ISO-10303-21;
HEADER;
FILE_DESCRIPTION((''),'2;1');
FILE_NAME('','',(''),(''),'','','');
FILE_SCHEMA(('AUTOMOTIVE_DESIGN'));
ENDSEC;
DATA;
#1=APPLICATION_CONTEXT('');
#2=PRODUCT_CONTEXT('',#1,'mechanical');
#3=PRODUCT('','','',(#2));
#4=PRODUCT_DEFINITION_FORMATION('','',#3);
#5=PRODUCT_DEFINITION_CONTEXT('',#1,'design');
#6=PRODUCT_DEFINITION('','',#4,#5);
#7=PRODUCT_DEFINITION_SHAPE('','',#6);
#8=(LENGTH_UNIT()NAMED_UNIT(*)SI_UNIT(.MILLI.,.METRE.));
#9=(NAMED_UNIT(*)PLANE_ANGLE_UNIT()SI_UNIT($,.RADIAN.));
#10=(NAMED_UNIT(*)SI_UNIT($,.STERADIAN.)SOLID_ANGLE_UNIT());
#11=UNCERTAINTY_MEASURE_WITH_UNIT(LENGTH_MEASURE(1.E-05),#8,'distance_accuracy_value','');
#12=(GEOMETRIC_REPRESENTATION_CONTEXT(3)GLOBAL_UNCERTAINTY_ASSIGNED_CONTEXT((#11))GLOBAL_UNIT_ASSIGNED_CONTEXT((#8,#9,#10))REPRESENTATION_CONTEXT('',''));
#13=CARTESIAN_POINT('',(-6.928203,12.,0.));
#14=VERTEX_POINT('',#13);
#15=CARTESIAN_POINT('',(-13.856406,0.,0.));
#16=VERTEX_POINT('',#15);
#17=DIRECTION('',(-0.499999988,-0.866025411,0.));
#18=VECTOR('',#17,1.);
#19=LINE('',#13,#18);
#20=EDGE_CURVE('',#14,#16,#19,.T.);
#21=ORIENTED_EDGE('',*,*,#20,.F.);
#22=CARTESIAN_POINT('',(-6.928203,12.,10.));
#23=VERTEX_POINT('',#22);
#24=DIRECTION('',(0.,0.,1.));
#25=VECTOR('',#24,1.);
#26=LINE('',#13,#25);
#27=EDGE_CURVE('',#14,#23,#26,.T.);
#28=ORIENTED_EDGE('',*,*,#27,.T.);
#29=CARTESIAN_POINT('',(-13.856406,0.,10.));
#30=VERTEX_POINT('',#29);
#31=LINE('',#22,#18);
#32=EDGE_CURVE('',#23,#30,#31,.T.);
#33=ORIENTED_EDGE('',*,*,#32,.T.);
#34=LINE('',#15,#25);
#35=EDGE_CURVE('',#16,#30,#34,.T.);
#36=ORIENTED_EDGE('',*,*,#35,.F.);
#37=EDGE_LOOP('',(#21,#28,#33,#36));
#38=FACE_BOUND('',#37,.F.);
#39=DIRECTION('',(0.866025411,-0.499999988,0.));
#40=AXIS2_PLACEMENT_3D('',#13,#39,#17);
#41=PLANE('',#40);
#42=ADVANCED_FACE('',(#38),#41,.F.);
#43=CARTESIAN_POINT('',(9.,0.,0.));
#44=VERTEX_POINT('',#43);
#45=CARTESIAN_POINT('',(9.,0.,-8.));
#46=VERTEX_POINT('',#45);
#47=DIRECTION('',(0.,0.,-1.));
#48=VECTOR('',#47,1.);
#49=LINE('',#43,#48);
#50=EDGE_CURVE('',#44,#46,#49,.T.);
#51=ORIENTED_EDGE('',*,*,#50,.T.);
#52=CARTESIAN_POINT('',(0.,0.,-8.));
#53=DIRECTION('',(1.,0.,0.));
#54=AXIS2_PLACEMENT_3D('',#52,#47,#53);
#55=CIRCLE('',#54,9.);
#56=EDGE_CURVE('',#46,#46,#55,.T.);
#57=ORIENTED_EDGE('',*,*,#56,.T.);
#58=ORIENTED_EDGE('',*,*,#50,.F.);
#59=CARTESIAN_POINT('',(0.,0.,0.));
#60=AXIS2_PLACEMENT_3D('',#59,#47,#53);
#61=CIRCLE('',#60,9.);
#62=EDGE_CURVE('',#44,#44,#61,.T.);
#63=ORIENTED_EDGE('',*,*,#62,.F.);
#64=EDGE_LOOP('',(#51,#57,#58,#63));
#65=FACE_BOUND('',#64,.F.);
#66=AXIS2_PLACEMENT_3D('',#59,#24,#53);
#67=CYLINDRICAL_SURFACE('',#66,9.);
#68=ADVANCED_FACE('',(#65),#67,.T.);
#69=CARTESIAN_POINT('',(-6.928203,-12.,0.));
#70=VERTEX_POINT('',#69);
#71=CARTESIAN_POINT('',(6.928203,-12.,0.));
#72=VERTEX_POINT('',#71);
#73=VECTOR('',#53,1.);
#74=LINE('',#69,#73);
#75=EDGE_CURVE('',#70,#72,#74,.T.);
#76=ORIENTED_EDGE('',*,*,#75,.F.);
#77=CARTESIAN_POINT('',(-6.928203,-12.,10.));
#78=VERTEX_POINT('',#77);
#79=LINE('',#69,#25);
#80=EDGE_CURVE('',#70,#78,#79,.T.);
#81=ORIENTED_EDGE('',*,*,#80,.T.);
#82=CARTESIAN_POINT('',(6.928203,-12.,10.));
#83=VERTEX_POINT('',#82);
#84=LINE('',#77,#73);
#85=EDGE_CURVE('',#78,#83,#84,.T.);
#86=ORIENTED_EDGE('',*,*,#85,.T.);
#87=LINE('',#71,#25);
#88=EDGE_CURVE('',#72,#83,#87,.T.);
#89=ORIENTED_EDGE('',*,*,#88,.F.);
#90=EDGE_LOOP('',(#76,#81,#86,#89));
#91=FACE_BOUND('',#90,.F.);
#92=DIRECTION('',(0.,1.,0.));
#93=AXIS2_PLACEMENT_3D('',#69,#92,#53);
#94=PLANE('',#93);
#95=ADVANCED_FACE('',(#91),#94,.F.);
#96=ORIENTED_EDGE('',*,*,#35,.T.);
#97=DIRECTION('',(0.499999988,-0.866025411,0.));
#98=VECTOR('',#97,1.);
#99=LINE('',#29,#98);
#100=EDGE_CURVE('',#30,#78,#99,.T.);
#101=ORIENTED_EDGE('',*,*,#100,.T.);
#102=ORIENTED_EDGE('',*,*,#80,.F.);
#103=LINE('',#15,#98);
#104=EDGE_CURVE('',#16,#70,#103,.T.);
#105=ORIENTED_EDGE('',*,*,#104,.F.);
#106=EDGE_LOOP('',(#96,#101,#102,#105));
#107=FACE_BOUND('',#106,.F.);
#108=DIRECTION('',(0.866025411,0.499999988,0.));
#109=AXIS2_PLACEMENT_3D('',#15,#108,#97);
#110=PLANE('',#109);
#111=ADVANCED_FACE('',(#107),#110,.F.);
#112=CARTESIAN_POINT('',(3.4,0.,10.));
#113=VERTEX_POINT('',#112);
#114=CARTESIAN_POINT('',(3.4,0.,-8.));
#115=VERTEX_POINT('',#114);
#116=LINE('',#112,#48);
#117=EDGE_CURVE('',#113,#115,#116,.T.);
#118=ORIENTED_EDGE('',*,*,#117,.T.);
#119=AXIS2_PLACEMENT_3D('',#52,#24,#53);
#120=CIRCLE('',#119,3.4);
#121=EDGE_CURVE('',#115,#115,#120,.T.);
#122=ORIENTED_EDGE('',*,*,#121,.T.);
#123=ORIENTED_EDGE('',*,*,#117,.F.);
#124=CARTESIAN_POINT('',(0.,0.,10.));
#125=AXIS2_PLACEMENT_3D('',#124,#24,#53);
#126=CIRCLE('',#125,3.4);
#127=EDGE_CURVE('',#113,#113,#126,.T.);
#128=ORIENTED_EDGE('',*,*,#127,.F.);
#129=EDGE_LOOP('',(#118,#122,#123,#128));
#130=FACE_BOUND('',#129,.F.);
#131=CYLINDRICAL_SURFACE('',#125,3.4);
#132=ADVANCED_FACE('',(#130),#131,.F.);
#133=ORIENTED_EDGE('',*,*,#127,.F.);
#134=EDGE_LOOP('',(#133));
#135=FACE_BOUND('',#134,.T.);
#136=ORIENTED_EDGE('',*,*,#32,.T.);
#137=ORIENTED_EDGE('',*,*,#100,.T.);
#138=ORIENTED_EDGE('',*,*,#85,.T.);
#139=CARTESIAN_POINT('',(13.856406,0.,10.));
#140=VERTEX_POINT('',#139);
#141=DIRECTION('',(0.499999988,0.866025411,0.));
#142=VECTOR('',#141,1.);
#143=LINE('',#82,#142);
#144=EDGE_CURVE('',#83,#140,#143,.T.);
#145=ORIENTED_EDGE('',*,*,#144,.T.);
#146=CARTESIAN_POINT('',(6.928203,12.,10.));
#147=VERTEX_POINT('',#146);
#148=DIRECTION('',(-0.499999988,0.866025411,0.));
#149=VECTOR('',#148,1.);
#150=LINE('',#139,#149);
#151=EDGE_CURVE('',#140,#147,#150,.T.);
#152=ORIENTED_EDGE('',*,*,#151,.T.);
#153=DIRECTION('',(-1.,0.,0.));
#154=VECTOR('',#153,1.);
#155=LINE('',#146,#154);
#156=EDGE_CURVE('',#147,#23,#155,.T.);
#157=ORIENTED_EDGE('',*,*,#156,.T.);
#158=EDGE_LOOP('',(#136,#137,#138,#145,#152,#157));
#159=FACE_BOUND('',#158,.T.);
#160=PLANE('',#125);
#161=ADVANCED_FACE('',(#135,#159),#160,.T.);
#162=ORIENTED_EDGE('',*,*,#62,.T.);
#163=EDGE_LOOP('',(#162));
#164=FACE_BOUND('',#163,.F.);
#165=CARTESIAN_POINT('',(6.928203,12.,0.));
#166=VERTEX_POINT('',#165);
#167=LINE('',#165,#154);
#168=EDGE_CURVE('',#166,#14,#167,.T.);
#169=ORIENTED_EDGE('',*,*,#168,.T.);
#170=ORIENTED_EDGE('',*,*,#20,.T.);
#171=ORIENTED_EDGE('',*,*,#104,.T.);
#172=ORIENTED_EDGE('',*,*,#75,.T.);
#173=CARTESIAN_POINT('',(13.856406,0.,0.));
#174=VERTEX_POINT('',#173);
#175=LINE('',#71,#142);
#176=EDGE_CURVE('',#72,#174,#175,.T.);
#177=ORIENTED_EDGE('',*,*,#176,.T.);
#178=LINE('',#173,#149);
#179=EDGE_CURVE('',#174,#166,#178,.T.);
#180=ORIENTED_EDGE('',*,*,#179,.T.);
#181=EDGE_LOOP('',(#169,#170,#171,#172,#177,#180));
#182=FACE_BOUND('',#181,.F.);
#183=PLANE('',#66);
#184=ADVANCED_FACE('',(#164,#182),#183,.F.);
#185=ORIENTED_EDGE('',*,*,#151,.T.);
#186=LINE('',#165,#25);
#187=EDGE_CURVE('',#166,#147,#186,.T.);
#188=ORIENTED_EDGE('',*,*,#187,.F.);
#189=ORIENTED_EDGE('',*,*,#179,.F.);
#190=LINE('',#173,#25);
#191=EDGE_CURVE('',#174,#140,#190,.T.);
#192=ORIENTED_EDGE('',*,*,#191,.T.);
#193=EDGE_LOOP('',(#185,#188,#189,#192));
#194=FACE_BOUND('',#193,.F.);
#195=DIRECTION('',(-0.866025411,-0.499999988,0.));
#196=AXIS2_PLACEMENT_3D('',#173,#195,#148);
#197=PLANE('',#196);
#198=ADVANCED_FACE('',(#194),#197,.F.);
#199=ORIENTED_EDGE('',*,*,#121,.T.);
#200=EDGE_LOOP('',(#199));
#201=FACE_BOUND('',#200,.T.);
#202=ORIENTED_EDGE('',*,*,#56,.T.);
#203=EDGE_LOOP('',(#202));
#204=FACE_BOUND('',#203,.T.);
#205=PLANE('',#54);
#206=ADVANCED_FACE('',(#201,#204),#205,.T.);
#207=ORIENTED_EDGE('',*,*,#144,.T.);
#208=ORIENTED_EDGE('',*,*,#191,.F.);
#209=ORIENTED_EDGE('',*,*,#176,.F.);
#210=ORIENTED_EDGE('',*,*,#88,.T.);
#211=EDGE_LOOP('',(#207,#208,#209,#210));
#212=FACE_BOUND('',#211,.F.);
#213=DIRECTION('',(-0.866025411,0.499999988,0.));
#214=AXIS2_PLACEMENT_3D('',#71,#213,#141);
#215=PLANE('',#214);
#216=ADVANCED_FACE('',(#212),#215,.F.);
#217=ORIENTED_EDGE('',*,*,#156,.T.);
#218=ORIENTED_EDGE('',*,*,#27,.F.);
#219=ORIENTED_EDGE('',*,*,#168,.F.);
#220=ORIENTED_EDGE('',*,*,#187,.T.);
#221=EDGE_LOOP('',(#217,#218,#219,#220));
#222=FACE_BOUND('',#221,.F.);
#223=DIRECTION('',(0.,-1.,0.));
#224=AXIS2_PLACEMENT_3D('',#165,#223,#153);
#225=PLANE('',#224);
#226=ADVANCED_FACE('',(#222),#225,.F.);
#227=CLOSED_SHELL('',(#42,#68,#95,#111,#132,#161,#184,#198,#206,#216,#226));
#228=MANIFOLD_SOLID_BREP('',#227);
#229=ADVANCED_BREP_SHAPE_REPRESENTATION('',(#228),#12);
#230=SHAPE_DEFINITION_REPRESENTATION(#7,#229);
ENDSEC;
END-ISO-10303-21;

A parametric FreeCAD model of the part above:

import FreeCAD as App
import Part
import Sketcher

V = App.Vector
Q = App.Units.Quantity

doc = App.newDocument("Part")
params = doc.addObject("Spreadsheet::Sheet", "Params")
for row, (alias, value) in enumerate([
    ("pad1_length", "10 mm"),
    ("sketch2_diameter", "18 mm"),
    ("pad2_length", "8 mm"),
    ("sketch3_diameter", "6.8 mm"),
    ("pocket1_length", "25 mm"),
], start=1):
    params.set(f"A{row}", alias)
    params.set(f"B{row}", "=" + value)
    params.setAlias(f"B{row}", alias)

body = doc.addObject("PartDesign::Body", "Body")

# Sketch on XY plane
sketch1 = body.newObject("Sketcher::SketchObject", "Sketch")
sketch1.AttachmentSupport = (doc.getObject("XY_Plane"), [""])
sketch1.MapMode = "FlatFace"
sketch1.addGeometry([
    Part.LineSegment(V(7, 12, 0), V(-7, 12, 0)),  # 0
    Part.LineSegment(V(-7, 12, 0), V(-14, 0, 0)),  # 1
    Part.LineSegment(V(-14, 0, 0), V(-7, -12, 0)),  # 2
    Part.LineSegment(V(-7, -12, 0), V(7, -12, 0)),  # 3
    Part.LineSegment(V(7, -12, 0), V(14, 0, 0)),  # 4
    Part.LineSegment(V(14, 0, 0), V(7, 12, 0)),  # 5
], False)
sketch1.addConstraint([
    Sketcher.Constraint("Coincident", 0, 2, 1, 1),
    Sketcher.Constraint("Coincident", 1, 2, 2, 1),
    Sketcher.Constraint("Coincident", 2, 2, 3, 1),
    Sketcher.Constraint("Coincident", 3, 2, 4, 1),
    Sketcher.Constraint("Coincident", 4, 2, 5, 1),
    Sketcher.Constraint("Coincident", 5, 2, 0, 1),
    Sketcher.Constraint("Horizontal", 0),
    Sketcher.Constraint("Horizontal", 3),
    Sketcher.Constraint("Symmetric", 0, 2, 3, 2, -1, 1),
    Sketcher.Constraint("Symmetric", 1, 2, 4, 2, -1, 1),
    Sketcher.Constraint("PointOnObject", 1, 2, -1),
    Sketcher.Constraint("Parallel", 2, 5),
    Sketcher.Constraint("Vertical", 0, 2, 2, 2),
    Sketcher.Constraint("Angle", 1, Q("-119.999999 deg")),
    Sketcher.Constraint("DistanceY", -1, 1, 0, 2, Q("12 mm")),
    Sketcher.Constraint("DistanceX", 0, 2, 0, 1, Q("13.856406 mm")),
])
pad1 = body.newObject("PartDesign::Pad", "Pad")
pad1.Profile = sketch1
pad1.setExpression("Length", "Params.pad1_length")

# Sketch on XY plane
sketch2 = body.newObject("Sketcher::SketchObject", "Sketch001")
sketch2.AttachmentSupport = (doc.getObject("XY_Plane"), [""])
sketch2.MapMode = "FlatFace"
sketch2.addGeometry(Part.Circle(V(0, 0, 0), V(0, 0, 1), 9), False)
sketch2.addConstraint([
    Sketcher.Constraint("Coincident", 0, 3, -1, 1),
    Sketcher.Constraint("Diameter", 0, Q("18 mm")),
])
sketch2.setExpression("Constraints[1]", "Params.sketch2_diameter")
pad2 = body.newObject("PartDesign::Pad", "Pad001")
pad2.Profile = sketch2
pad2.setExpression("Length", "Params.pad2_length")
pad2.Reversed = True

# Sketch on XY plane
sketch3 = body.newObject("Sketcher::SketchObject", "Sketch002")
sketch3.AttachmentSupport = (doc.getObject("XY_Plane"), [""])
sketch3.MapMode = "FlatFace"
sketch3.AttachmentOffset = App.Placement(V(0, 0, 10), App.Rotation())
sketch3.addGeometry(Part.Circle(V(0, 0, 0), V(0, 0, 1), 3.4), False)
sketch3.addConstraint([
    Sketcher.Constraint("Coincident", 0, 3, -1, 1),
    Sketcher.Constraint("Diameter", 0, Q("6.8 mm")),
])
sketch3.setExpression("Constraints[1]", "Params.sketch3_diameter")
pocket1 = body.newObject("PartDesign::Pocket", "Pocket")
pocket1.Profile = sketch3
pocket1.setExpression("Length", "Params.pocket1_length")

doc.recompute()
